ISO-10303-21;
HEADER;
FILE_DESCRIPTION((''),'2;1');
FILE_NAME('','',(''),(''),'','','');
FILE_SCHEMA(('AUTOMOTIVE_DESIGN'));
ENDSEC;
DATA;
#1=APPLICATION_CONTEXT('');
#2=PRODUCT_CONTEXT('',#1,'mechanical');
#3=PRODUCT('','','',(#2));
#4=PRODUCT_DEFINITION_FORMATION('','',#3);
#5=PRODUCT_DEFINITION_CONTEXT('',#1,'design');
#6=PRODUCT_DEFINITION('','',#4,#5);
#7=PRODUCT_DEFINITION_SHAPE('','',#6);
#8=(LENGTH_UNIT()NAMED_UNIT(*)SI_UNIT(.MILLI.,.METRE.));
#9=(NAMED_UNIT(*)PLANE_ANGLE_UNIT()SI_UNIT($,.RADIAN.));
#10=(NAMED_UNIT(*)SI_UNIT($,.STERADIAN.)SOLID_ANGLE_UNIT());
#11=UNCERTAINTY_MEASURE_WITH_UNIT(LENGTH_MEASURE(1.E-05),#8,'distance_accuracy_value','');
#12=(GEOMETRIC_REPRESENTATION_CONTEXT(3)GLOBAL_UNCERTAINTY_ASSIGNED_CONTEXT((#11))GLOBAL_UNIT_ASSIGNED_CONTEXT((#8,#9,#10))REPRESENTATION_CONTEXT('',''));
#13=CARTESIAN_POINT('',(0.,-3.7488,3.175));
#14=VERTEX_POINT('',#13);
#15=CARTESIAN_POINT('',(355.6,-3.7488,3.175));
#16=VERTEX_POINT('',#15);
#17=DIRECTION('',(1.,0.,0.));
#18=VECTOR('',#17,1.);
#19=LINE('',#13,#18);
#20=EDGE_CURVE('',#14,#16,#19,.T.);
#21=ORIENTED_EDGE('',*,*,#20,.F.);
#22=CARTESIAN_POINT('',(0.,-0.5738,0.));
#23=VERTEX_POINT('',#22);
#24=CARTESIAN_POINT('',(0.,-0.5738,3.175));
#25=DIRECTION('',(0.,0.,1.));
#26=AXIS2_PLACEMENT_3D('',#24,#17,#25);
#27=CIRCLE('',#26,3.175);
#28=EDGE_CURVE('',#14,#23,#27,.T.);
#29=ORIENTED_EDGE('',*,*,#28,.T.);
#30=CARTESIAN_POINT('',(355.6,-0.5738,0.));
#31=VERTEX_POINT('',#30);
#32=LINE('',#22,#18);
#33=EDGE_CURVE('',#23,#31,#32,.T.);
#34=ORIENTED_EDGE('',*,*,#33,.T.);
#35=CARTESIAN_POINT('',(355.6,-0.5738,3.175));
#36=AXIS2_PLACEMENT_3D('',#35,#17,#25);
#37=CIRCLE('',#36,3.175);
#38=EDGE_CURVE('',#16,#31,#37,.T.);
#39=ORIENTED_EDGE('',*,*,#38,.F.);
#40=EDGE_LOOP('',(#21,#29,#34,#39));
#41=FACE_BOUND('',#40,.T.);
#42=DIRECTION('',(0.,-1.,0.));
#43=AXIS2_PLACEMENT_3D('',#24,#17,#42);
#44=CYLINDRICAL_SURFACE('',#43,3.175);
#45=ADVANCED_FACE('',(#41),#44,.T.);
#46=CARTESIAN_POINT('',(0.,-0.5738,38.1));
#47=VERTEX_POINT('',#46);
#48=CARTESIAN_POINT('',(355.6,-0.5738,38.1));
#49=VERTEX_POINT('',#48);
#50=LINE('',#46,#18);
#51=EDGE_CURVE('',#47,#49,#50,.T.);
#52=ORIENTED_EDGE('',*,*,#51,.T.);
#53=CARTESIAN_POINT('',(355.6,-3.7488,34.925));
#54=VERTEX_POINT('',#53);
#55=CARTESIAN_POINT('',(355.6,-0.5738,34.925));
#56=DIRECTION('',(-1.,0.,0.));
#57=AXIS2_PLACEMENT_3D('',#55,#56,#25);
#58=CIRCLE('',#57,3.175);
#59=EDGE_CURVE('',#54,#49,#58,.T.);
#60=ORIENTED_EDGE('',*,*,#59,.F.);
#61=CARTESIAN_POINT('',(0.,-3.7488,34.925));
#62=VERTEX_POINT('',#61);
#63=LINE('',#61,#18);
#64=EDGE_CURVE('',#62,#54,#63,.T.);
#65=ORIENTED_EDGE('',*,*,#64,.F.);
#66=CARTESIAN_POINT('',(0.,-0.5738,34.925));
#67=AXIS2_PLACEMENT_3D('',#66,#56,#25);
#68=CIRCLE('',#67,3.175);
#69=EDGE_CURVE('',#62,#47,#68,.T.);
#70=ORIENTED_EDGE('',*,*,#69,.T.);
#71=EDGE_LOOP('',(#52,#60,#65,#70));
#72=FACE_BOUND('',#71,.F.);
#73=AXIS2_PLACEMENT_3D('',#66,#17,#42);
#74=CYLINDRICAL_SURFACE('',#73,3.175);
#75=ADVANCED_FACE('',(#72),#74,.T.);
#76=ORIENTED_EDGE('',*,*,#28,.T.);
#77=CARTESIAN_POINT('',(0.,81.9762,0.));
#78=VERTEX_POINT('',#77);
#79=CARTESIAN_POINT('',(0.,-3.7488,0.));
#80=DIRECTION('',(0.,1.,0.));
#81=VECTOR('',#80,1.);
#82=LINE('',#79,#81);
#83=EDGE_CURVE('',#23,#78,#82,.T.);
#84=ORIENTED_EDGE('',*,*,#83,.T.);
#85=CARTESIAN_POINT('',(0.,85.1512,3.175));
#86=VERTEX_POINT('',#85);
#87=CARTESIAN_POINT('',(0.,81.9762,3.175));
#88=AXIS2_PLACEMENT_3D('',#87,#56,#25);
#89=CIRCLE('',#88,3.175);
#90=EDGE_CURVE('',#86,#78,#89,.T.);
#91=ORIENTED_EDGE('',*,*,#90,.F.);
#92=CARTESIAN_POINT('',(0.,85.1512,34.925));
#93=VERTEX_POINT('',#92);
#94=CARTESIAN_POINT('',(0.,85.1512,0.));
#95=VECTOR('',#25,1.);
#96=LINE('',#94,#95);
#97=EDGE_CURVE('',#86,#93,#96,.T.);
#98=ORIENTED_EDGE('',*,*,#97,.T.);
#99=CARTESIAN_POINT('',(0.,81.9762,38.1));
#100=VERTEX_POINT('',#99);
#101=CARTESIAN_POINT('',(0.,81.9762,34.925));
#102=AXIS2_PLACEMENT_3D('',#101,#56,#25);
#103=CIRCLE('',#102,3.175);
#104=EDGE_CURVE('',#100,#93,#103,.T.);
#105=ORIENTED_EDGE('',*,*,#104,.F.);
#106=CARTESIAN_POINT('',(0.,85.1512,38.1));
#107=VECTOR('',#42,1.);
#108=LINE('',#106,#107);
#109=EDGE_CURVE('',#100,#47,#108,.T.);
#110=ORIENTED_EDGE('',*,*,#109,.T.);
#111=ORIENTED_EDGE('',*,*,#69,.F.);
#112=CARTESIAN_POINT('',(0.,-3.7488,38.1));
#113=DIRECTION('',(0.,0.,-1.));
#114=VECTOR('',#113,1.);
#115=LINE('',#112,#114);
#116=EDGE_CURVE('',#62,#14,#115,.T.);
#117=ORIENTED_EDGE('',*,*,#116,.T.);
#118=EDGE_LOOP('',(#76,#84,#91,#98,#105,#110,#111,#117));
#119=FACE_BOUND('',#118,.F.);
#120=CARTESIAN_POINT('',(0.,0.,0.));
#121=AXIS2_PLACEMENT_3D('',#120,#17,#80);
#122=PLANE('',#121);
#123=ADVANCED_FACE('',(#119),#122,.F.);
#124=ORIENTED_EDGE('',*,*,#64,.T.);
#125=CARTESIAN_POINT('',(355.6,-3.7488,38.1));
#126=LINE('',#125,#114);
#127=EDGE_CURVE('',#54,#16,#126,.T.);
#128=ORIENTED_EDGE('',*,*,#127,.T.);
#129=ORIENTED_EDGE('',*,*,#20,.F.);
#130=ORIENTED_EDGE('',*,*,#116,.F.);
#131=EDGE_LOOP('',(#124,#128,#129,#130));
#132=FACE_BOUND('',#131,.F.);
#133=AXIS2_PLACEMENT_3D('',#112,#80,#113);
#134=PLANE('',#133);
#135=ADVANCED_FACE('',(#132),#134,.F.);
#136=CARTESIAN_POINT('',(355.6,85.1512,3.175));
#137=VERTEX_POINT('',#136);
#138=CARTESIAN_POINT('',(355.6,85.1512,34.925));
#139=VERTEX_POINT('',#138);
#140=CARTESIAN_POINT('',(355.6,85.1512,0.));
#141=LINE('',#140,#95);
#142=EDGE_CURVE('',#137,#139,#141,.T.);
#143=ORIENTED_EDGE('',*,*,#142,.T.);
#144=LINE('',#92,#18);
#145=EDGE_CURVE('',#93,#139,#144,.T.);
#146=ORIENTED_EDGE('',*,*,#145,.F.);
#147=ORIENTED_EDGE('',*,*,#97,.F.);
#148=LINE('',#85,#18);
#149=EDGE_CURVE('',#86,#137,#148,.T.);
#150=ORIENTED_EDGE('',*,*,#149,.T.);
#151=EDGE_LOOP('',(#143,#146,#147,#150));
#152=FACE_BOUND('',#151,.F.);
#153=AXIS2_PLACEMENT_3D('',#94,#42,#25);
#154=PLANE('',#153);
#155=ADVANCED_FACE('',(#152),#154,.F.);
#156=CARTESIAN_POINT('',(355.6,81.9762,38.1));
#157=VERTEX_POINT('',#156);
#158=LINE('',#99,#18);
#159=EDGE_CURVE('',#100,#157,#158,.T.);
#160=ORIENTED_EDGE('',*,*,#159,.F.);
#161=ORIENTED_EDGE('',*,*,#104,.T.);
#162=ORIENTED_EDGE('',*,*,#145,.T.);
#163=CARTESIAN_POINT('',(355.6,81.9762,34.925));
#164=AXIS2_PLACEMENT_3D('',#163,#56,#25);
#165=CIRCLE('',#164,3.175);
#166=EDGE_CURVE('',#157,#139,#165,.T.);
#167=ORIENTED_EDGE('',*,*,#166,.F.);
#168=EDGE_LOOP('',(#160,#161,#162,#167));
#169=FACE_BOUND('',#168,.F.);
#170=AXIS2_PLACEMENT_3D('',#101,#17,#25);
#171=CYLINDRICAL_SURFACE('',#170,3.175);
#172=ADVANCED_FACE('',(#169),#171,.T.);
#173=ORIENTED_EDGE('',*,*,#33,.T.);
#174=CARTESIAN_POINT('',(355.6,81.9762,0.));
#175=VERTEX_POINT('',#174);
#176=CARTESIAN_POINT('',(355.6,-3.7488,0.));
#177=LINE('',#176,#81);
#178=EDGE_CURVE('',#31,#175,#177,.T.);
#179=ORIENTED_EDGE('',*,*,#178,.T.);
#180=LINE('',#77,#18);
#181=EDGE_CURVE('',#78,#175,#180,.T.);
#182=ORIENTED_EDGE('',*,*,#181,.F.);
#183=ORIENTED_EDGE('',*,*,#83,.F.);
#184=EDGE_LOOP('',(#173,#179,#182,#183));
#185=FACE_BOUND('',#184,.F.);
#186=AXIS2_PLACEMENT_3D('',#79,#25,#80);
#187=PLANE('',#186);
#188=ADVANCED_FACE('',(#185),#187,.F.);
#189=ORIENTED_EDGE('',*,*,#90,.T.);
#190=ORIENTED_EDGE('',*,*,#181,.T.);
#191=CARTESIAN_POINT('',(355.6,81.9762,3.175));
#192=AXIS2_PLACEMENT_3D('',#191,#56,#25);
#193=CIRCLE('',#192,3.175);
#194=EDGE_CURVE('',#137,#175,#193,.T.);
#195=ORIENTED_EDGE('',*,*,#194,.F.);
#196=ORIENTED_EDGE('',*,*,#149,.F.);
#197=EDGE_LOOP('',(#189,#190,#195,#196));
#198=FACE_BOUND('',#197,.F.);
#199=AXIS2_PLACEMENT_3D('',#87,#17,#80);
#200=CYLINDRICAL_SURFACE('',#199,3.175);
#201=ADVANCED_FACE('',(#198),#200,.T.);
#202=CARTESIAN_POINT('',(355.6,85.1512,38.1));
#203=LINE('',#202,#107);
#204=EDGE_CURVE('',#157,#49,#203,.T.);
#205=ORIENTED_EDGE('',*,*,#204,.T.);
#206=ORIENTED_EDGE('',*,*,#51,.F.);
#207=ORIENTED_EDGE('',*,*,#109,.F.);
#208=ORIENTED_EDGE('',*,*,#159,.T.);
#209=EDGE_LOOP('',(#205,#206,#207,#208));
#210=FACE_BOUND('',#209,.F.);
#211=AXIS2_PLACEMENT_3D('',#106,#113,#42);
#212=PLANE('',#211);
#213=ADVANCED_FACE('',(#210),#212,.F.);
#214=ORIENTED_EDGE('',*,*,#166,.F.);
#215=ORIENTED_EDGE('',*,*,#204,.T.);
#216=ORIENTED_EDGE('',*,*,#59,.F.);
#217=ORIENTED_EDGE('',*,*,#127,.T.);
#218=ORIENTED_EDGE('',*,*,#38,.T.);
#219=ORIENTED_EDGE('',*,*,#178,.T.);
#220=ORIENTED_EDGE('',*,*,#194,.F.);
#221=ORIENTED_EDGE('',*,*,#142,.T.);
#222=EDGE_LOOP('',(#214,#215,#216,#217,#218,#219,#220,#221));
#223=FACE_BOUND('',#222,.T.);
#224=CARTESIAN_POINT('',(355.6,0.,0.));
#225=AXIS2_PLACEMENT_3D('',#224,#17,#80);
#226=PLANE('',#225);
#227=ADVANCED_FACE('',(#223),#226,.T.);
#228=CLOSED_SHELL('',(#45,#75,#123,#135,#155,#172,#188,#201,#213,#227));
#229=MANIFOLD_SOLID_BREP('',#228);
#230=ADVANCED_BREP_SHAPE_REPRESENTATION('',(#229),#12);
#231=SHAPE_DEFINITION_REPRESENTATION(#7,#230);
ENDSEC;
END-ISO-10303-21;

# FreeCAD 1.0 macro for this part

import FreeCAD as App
import Part
import Sketcher
Q = App.Units.Quantity


def edges_at(feature, points):
    """Names of the edges that pass closest to the given points."""
    edges = feature.Shape.Edges
    near = lambda p: min(range(len(edges)), key=lambda i: edges[i].distToShape(Part.Vertex(*p))[0])
    return sorted({f"Edge{near(p) + 1}" for p in points})

doc = App.newDocument("Part")
body = doc.addObject("PartDesign::Body", "Body")

# Sketch on YZ plane
sketch1 = body.newObject("Sketcher::SketchObject", "Sketch")
sketch1.AttachmentSupport = (doc.getObject("YZ_Plane"), [""])
sketch1.MapMode = "FlatFace"
sketch1.addGeometry([
    Part.LineSegment(App.Vector(-3.7488, 38.1, 0), App.Vector(-3.7488, 0, 0)),
    Part.LineSegment(App.Vector(-3.7488, 0, 0), App.Vector(85.1512, 0, 0)),
    Part.LineSegment(App.Vector(85.1512, 0, 0), App.Vector(85.1512, 38.1, 0)),
    Part.LineSegment(App.Vector(85.1512, 38.1, 0), App.Vector(-3.7488, 38.1, 0)),
], False)
sketch1.addConstraint([
    Sketcher.Constraint("Coincident", 0, 2, 1, 1),
    Sketcher.Constraint("Coincident", 1, 2, 2, 1),
    Sketcher.Constraint("Coincident", 2, 2, 3, 1),
    Sketcher.Constraint("Coincident", 3, 2, 0, 1),
    Sketcher.Constraint("Vertical", 0),
    Sketcher.Constraint("Horizontal", 1),
    Sketcher.Constraint("Vertical", 2),
    Sketcher.Constraint("Horizontal", 3),
    Sketcher.Constraint("PointOnObject", 0, 2, -1),
    Sketcher.Constraint("DistanceX", 1, 1, 1, 2, Q("3.5 in")),
    Sketcher.Constraint("DistanceY", 0, 2, 0, 1, Q("1.5 in")),
    Sketcher.Constraint("DistanceX", 0, 2, -1, 1, Q("0.1476 in")),
])
pad1 = body.newObject("PartDesign::Pad", "Pad")
pad1.Profile = sketch1
pad1.Length = Q("14 in")
doc.recompute()

fillet = body.newObject("PartDesign::Fillet", "Fillet")
fillet.Base = (pad1, edges_at(pad1, [
    (177.8, 85.151, 38.1),
    (177.8, 85.151, 0),
    (177.8, -3.749, 0),
    (177.8, -3.749, 38.1),
]))
fillet.Radius = Q("0.125 in")

doc.recompute()
